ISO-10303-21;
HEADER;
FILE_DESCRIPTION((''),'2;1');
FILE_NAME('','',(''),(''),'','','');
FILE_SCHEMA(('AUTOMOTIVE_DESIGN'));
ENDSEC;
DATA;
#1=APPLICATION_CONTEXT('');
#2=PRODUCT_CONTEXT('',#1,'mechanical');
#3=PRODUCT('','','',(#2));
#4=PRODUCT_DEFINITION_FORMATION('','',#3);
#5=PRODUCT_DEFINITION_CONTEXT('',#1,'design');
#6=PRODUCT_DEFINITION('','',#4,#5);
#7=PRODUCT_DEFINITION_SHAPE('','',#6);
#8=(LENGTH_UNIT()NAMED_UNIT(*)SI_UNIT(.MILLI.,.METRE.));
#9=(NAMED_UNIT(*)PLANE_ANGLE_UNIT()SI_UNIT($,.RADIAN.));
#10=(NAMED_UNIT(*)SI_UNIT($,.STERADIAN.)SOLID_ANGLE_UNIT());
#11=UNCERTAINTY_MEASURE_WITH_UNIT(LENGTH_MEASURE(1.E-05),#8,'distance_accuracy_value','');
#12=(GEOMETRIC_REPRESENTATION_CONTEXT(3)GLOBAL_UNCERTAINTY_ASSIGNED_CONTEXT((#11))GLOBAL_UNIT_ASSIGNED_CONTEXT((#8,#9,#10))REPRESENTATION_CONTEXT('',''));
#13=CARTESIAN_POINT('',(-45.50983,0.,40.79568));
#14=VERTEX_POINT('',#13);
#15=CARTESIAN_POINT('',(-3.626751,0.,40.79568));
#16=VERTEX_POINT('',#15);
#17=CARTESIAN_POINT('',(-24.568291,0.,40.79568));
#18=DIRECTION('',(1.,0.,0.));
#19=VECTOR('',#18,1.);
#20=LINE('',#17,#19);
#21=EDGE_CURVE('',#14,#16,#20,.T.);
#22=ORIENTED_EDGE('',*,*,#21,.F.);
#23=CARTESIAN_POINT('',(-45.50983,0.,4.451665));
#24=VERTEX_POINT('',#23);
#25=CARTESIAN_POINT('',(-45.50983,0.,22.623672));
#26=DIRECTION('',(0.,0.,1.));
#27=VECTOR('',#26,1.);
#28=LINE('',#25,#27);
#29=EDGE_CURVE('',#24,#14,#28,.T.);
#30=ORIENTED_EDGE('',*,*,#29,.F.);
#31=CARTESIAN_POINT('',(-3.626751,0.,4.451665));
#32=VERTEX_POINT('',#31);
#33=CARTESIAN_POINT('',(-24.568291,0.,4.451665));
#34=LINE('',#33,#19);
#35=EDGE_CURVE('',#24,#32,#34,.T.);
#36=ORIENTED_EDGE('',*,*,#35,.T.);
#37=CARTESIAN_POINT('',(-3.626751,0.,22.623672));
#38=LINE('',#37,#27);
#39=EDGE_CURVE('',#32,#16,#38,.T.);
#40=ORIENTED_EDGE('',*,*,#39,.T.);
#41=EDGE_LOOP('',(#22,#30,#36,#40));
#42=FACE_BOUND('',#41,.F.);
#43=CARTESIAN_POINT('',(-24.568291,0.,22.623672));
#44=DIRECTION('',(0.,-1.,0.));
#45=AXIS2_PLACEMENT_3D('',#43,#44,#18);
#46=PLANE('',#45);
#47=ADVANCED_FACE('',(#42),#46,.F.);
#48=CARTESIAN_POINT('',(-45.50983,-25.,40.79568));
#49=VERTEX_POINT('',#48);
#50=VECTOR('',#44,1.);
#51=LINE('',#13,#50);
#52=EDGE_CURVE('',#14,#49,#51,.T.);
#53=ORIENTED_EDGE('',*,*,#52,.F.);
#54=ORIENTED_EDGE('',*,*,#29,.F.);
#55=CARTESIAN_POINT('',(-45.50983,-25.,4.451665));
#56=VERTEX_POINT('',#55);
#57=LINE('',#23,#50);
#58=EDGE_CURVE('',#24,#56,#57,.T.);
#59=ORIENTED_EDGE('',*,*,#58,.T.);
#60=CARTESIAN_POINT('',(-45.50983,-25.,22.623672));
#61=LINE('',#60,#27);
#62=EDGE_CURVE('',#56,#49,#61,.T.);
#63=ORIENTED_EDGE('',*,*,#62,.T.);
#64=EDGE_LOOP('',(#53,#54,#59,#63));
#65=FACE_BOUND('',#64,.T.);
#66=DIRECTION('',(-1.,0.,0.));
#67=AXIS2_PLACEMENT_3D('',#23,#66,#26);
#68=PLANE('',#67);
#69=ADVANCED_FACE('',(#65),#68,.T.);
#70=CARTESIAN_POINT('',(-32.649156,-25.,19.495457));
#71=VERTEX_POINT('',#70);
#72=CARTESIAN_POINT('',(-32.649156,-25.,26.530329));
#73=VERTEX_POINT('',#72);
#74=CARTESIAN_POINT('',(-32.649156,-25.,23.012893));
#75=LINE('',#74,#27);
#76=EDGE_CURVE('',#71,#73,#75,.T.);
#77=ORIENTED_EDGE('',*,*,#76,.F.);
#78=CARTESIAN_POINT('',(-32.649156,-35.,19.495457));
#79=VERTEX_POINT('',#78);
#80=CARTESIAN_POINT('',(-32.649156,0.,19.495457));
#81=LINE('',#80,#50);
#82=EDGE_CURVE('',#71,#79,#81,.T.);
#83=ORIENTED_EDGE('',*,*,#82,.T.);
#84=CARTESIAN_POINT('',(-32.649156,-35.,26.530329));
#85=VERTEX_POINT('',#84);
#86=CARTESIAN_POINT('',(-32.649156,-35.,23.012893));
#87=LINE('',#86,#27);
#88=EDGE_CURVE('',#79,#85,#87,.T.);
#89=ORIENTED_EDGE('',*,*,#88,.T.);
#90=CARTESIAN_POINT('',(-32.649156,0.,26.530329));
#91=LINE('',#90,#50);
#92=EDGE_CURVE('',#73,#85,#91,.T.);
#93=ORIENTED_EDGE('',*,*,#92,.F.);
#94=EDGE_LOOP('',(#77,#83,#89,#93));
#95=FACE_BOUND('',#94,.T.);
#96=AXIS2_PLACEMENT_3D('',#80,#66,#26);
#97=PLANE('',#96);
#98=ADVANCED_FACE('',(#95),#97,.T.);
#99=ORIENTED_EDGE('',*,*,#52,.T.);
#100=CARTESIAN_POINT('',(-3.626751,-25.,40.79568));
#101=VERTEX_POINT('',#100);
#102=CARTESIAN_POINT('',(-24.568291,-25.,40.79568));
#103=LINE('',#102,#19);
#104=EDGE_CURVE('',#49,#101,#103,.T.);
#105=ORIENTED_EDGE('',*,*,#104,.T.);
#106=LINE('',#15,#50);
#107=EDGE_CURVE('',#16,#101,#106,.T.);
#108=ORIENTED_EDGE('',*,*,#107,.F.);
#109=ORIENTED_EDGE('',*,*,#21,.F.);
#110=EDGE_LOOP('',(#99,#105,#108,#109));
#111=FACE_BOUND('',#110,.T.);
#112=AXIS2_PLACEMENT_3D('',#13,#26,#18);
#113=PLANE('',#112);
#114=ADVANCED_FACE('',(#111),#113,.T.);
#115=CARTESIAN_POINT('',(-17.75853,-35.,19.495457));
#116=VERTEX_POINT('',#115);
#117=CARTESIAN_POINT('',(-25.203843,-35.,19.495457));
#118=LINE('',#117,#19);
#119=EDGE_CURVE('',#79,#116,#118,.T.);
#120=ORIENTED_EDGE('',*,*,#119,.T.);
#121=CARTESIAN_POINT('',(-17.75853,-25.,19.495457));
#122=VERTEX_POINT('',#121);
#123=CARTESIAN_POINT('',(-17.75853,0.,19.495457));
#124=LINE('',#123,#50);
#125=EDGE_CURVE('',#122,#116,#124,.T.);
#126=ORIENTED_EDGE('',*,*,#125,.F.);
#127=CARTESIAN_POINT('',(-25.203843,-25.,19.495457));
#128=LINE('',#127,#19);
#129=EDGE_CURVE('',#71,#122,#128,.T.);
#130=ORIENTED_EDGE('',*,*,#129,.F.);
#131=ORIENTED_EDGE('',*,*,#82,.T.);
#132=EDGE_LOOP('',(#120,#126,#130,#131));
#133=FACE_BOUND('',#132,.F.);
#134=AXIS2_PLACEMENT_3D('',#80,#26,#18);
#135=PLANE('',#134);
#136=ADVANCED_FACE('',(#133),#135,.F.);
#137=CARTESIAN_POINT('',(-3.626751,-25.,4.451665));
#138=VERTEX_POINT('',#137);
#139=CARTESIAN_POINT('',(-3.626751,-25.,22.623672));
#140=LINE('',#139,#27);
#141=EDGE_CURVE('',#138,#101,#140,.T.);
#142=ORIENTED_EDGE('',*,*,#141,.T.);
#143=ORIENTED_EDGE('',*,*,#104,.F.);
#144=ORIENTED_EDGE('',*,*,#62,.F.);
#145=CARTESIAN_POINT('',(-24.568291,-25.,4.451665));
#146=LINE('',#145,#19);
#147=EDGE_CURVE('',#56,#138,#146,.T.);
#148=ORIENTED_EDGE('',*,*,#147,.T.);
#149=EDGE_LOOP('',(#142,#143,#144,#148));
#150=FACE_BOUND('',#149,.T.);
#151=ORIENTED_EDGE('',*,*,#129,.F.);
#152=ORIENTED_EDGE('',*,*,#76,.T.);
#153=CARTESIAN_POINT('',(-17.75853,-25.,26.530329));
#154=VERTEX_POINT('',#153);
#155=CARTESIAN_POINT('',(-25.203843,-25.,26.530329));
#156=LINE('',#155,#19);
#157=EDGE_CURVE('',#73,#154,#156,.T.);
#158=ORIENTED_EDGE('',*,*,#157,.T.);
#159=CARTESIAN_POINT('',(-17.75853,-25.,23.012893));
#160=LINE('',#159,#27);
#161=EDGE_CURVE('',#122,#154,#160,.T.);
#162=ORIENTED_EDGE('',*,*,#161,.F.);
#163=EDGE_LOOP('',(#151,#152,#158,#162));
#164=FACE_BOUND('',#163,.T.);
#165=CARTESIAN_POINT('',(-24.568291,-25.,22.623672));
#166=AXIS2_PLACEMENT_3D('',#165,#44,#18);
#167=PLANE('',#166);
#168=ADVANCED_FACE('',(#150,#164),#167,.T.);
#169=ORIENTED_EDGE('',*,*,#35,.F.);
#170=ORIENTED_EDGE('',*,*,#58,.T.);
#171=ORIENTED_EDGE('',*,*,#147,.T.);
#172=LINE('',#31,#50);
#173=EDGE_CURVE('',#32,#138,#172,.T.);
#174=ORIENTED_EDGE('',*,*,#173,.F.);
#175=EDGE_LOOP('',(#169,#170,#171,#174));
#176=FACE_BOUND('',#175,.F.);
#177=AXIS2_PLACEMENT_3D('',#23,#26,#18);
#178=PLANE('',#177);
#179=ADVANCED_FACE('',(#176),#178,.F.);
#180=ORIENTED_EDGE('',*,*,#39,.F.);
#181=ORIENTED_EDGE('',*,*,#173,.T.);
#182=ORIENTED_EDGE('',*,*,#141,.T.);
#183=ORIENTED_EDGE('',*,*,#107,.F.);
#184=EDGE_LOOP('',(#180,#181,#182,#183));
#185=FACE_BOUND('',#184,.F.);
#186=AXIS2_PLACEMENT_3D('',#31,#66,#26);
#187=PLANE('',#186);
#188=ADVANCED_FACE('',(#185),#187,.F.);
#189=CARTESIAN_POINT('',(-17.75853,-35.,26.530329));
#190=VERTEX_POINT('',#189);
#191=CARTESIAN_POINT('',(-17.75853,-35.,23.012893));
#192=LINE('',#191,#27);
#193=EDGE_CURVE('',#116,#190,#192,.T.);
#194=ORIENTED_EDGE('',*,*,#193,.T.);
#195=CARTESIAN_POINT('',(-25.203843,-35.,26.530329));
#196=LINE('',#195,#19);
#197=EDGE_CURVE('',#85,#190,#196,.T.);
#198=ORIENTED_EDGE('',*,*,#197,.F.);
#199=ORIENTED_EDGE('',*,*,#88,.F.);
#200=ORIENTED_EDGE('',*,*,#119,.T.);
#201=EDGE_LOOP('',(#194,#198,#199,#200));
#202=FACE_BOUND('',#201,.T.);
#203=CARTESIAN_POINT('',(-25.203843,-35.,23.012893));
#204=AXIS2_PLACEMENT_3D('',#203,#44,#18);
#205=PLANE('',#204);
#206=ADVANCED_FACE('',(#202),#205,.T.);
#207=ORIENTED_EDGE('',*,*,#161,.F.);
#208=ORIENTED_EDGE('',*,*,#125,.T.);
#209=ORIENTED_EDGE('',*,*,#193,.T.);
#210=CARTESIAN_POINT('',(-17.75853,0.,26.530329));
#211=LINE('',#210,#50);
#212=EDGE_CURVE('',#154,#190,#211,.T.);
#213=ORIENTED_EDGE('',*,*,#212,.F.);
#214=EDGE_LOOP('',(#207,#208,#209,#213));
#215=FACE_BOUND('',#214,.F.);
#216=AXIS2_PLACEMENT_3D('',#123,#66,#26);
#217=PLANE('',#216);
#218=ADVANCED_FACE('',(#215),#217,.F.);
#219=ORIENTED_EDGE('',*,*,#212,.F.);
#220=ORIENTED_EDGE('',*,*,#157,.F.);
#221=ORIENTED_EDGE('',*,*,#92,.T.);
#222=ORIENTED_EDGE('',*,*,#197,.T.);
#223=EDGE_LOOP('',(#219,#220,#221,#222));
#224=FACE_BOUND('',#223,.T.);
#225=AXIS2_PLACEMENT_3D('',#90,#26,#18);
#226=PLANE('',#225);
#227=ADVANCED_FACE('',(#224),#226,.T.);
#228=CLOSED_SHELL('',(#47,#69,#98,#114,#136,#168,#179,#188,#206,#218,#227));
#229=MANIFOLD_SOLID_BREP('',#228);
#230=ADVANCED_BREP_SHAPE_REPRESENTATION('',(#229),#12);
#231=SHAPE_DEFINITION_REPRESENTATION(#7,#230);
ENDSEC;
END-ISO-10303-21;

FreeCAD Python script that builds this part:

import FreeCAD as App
import Part
import Sketcher


def add_polygon(sketch, points):
    """Adds a closed chain of lines whose ends are joined by coincident constraints."""
    first, n = sketch.GeometryCount, len(points)
    for a, b in zip(points, points[1:] + points[:1]):
        sketch.addGeometry(Part.LineSegment(App.Vector(*a, 0), App.Vector(*b, 0)), False)
    for i in range(n):
        sketch.addConstraint(Sketcher.Constraint("Coincident", first + i, 2, first + (i + 1) % n, 1))

doc = App.newDocument("Part")
params = doc.addObject("Spreadsheet::Sheet", "Params")
for row, (alias, value) in enumerate([
    ("pad1_length", "25 mm"),
    ("pad2_length", "35 mm"),
], start=1):
    params.set(f"A{row}", alias)
    params.set(f"B{row}", "=" + value)
    params.setAlias(f"B{row}", alias)

body = doc.addObject("PartDesign::Body", "Body")

# Sketch on XZ plane
sketch1 = body.newObject("Sketcher::SketchObject", "Sketch")
sketch1.AttachmentSupport = (doc.getObject("XZ_Plane"), [""])
sketch1.MapMode = "FlatFace"
add_polygon(sketch1, [(-46, 41), (-46, 4), (-4, 4), (-4, 41)])  # lines 0-3
add_polygon(sketch1, [(-18, 19), (-33, 19), (-33, 27), (-18, 27)])  # lines 4-7
sketch1.addConstraint(Sketcher.Constraint("Vertical", 0))
sketch1.addConstraint(Sketcher.Constraint("Horizontal", 1))
sketch1.addConstraint(Sketcher.Constraint("Vertical", 2))
sketch1.addConstraint(Sketcher.Constraint("Horizontal", 3))
sketch1.addConstraint(Sketcher.Constraint("Horizontal", 4))
sketch1.addConstraint(Sketcher.Constraint("Vertical", 5))
sketch1.addConstraint(Sketcher.Constraint("Horizontal", 6))
sketch1.addConstraint(Sketcher.Constraint("Vertical", 7))
sketch1.addConstraint(Sketcher.Constraint("DistanceX", 1, 1, 1, 2, 41.883079))
sketch1.addConstraint(Sketcher.Constraint("DistanceY", 5, 1, 5, 2, 7.034872))
sketch1.addConstraint(Sketcher.Constraint("DistanceX", 3, 2, 6, 2, 27.7513))
sketch1.addConstraint(Sketcher.Constraint("DistanceX", 4, 2, 4, 1, 14.890626))
sketch1.addConstraint(Sketcher.Constraint("DistanceY", 0, 2, 0, 1, 36.344016))
sketch1.addConstraint(Sketcher.Constraint("DistanceX", 0, 2, -1, 1, 45.50983))
sketch1.addConstraint(Sketcher.Constraint("DistanceY", -1, 1, 2, 2, 40.79568))
sketch1.addConstraint(Sketcher.Constraint("DistanceY", -1, 1, 5, 2, 26.530329))
pad1 = body.newObject("PartDesign::Pad", "Pad")
pad1.Profile = sketch1
pad1.setExpression("Length", "Params.pad1_length")

# Sketch on XZ plane
sketch2 = body.newObject("Sketcher::SketchObject", "Sketch001")
sketch2.AttachmentSupport = (doc.getObject("XZ_Plane"), [""])
sketch2.MapMode = "FlatFace"
add_polygon(sketch2, [(-33, 27), (-33, 19), (-18, 19), (-18, 27)])  # lines 0-3
sketch2.addConstraint(Sketcher.Constraint("Vertical", 0))
sketch2.addConstraint(Sketcher.Constraint("Horizontal", 1))
sketch2.addConstraint(Sketcher.Constraint("Vertical", 2))
sketch2.addConstraint(Sketcher.Constraint("Horizontal", 3))
sketch2.addConstraint(Sketcher.Constraint("DistanceY", 0, 2, 0, 1, 7.034872))
sketch2.addConstraint(Sketcher.Constraint("DistanceX", 1, 1, 1, 2, 14.890626))
sketch2.addConstraint(Sketcher.Constraint("DistanceX", 1, 2, -1, 1, 17.75853))
sketch2.addConstraint(Sketcher.Constraint("DistanceY", -1, 1, 2, 2, 26.530329))
pad2 = body.newObject("PartDesign::Pad", "Pad001")
pad2.Profile = sketch2
pad2.setExpression("Length", "Params.pad2_length")

doc.recompute()
